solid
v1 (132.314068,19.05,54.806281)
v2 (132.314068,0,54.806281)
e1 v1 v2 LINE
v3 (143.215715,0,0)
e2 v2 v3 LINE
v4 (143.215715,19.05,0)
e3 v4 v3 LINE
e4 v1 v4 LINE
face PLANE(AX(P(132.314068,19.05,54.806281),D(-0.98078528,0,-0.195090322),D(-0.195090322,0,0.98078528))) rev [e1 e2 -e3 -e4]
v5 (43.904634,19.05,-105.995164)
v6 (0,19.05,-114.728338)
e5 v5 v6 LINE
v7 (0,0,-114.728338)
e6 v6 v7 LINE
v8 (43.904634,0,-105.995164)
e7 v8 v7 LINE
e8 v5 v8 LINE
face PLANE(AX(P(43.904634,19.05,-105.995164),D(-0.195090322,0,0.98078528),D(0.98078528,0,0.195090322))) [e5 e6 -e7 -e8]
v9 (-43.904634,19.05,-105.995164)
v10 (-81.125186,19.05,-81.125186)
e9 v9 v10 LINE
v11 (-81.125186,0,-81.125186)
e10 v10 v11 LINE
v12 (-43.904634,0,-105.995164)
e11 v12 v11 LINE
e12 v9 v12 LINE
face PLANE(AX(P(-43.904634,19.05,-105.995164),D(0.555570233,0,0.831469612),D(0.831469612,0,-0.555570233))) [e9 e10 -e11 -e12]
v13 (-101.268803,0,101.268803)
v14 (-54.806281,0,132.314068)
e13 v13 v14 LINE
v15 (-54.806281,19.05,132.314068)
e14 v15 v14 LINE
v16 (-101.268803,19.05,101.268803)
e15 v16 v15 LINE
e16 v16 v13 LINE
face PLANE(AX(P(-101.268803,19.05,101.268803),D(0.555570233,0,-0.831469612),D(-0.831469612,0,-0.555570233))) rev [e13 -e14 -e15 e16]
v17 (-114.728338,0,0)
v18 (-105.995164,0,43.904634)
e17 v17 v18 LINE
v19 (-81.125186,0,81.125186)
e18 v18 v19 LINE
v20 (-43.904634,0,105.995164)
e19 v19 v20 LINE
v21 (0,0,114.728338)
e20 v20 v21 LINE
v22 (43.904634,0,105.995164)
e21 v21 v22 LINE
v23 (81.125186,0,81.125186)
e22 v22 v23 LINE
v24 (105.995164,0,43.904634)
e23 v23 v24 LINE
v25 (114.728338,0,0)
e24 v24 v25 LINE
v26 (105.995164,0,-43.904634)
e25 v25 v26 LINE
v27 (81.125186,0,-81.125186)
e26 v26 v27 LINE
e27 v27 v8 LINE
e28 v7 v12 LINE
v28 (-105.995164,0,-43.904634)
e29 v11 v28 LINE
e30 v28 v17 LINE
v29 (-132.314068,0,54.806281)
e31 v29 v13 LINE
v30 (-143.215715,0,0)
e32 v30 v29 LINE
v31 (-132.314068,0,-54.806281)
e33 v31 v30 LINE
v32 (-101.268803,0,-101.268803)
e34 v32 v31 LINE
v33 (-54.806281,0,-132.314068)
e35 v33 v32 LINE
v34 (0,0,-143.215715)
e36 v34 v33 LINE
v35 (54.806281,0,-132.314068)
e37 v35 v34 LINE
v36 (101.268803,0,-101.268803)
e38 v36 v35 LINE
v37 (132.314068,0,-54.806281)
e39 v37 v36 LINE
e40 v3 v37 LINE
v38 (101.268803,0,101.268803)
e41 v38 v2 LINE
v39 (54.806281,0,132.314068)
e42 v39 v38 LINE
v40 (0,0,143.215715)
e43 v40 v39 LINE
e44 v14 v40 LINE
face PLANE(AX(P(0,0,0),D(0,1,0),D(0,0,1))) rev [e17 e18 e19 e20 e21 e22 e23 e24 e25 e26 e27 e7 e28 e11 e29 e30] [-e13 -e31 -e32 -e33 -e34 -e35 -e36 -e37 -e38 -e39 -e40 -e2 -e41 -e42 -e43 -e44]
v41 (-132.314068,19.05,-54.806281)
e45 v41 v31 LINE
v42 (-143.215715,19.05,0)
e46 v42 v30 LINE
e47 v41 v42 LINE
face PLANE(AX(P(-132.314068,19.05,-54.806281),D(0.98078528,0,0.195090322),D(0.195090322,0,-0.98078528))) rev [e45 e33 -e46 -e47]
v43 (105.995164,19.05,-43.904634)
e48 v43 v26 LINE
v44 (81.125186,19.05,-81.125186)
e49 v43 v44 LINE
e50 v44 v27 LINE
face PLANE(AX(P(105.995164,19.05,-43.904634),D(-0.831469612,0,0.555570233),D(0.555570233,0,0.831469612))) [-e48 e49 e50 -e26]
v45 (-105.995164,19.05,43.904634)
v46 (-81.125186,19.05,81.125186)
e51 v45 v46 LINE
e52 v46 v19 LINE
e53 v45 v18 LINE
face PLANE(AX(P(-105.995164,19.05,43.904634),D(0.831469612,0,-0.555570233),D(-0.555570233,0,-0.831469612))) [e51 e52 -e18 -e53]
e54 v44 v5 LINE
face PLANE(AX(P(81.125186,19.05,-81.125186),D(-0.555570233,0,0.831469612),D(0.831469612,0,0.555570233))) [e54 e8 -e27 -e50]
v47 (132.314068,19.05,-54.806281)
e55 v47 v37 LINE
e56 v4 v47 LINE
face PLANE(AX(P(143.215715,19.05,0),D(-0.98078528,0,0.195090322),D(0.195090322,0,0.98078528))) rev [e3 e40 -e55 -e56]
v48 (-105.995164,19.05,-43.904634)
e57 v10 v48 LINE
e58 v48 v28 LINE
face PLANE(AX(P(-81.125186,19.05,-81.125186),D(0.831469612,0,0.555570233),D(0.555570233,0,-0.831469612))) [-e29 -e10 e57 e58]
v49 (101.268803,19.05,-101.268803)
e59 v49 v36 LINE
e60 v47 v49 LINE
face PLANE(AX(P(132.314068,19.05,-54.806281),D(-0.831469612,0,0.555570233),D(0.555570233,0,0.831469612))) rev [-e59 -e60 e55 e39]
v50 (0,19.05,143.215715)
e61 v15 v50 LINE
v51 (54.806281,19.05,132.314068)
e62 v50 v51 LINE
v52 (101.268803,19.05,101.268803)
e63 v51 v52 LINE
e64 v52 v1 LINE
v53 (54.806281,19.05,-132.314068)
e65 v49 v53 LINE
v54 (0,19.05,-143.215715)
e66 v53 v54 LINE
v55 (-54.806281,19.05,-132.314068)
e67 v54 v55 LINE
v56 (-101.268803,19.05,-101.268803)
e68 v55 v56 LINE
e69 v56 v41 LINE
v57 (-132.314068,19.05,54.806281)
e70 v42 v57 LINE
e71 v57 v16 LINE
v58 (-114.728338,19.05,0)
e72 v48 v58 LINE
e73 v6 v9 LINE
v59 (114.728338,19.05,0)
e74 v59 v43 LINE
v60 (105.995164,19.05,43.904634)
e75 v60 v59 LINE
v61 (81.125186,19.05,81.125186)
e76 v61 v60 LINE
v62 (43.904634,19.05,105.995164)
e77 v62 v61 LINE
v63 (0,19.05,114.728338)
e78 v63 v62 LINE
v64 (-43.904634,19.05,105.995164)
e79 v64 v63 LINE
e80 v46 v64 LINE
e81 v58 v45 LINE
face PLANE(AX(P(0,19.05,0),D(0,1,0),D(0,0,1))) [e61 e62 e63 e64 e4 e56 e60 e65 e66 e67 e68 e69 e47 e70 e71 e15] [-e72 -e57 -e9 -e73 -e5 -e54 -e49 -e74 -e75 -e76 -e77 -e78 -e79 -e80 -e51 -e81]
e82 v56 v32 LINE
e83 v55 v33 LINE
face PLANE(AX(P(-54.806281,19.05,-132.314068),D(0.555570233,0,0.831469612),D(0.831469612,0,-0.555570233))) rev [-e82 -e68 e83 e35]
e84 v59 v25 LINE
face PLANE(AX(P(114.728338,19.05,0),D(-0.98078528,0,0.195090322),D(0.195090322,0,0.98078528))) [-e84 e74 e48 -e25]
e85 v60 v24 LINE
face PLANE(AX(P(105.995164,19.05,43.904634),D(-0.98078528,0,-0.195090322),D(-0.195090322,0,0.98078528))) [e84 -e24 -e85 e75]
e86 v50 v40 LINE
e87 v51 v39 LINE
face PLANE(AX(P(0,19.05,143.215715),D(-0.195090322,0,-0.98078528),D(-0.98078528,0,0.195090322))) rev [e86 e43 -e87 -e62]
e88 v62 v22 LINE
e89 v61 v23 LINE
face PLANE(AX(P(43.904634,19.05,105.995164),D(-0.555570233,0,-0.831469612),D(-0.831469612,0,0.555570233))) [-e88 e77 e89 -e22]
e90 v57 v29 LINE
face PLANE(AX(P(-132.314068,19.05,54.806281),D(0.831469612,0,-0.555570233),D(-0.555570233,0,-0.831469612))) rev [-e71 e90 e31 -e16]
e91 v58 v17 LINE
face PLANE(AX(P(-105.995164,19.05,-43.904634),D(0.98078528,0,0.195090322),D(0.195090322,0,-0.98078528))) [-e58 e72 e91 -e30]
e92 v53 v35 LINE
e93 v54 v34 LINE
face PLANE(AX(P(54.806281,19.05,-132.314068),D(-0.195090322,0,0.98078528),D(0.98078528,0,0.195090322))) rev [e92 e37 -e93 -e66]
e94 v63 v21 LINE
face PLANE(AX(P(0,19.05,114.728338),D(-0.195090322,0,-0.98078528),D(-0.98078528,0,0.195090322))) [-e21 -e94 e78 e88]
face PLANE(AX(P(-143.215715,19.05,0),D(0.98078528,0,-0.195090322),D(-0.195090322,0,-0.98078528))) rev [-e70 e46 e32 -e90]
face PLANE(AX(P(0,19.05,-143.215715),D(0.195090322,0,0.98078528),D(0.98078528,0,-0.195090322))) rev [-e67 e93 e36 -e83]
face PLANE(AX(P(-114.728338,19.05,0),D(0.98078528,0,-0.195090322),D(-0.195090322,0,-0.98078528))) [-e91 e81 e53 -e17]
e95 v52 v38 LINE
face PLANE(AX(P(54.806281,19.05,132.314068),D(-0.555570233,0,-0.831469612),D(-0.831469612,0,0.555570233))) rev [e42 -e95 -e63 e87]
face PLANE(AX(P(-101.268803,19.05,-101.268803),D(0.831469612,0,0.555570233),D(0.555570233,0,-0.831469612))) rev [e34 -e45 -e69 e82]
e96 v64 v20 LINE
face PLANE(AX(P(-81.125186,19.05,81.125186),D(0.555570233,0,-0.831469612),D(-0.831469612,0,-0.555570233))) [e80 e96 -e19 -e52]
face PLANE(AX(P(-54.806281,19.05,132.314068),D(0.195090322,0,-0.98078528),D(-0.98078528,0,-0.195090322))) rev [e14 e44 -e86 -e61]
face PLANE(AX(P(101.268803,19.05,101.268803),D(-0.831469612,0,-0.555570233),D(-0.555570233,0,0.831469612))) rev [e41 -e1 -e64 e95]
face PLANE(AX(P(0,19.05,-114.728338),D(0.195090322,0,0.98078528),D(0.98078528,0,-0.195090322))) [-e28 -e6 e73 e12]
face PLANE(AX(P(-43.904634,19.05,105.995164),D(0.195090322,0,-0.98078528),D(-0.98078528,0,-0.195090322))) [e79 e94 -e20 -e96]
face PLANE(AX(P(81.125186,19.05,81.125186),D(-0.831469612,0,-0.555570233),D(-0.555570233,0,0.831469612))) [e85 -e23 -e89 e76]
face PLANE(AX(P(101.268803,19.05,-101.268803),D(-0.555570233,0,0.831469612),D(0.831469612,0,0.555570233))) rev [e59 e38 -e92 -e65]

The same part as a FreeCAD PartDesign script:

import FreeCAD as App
import Part
import Sketcher
from FreeCAD import Vector
Q = App.Units.Quantity

doc = App.newDocument("Part")
body = doc.addObject("PartDesign::Body", "Body")

sketch1 = body.newObject("Sketcher::SketchObject", "Sketch")
sketch1.AttachmentSupport = (doc.getObject("XZ_Plane"), [""])
sketch1.MapMode = "FlatFace"
sketch1.addGeometry([
    Part.LineSegment(Vector(143.215715, 0, 0), Vector(132.314068, -54.806281, 0)),
    Part.LineSegment(Vector(132.314068, -54.806281, 0), Vector(101.268803, -101.268803, 0)),
    Part.LineSegment(Vector(101.268803, -101.268803, 0), Vector(54.806281, -132.314068, 0)),
    Part.LineSegment(Vector(54.806281, -132.314068, 0), Vector(0, -143.215715, 0)),
    Part.LineSegment(Vector(0, -143.215715, 0), Vector(-54.806281, -132.314068, 0)),
    Part.LineSegment(Vector(-54.806281, -132.314068, 0), Vector(-101.268803, -101.268803, 0)),
    Part.LineSegment(Vector(-101.268803, -101.268803, 0), Vector(-132.314068, -54.806281, 0)),
    Part.LineSegment(Vector(-132.314068, -54.806281, 0), Vector(-143.215715, 0, 0)),
    Part.LineSegment(Vector(-143.215715, 0, 0), Vector(-132.314068, 54.806281, 0)),
    Part.LineSegment(Vector(-132.314068, 54.806281, 0), Vector(-101.268803, 101.268803, 0)),
    Part.LineSegment(Vector(-101.268803, 101.268803, 0), Vector(-54.806281, 132.314068, 0)),
    Part.LineSegment(Vector(-54.806281, 132.314068, 0), Vector(0, 143.215715, 0)),
    Part.LineSegment(Vector(0, 143.215715, 0), Vector(54.806281, 132.314068, 0)),
    Part.LineSegment(Vector(54.806281, 132.314068, 0), Vector(101.268803, 101.268803, 0)),
    Part.LineSegment(Vector(101.268803, 101.268803, 0), Vector(132.314068, 54.806281, 0)),
    Part.LineSegment(Vector(132.314068, 54.806281, 0), Vector(143.215715, 0, 0)),
    Part.LineSegment(Vector(105.995164, -43.904634, 0), Vector(114.728338, 0, 0)),
    Part.LineSegment(Vector(114.728338, 0, 0), Vector(105.995164, 43.904634, 0)),
    Part.LineSegment(Vector(105.995164, 43.904634, 0), Vector(81.125186, 81.125186, 0)),
    Part.LineSegment(Vector(81.125186, 81.125186, 0), Vector(43.904634, 105.995164, 0)),
    Part.LineSegment(Vector(43.904634, 105.995164, 0), Vector(0, 114.728338, 0)),
    Part.LineSegment(Vector(0, 114.728338, 0), Vector(-43.904634, 105.995164, 0)),
    Part.LineSegment(Vector(-43.904634, 105.995164, 0), Vector(-81.125186, 81.125186, 0)),
    Part.LineSegment(Vector(-81.125186, 81.125186, 0), Vector(-105.995164, 43.904634, 0)),
    Part.LineSegment(Vector(-105.995164, 43.904634, 0), Vector(-114.728338, 0, 0)),
    Part.LineSegment(Vector(-114.728338, 0, 0), Vector(-105.995164, -43.904634, 0)),
    Part.LineSegment(Vector(-105.995164, -43.904634, 0), Vector(-81.125186, -81.125186, 0)),
    Part.LineSegment(Vector(-81.125186, -81.125186, 0), Vector(-43.904634, -105.995164, 0)),
    Part.LineSegment(Vector(-43.904634, -105.995164, 0), Vector(0, -114.728338, 0)),
    Part.LineSegment(Vector(0, -114.728338, 0), Vector(43.904634, -105.995164, 0)),
    Part.LineSegment(Vector(43.904634, -105.995164, 0), Vector(81.125186, -81.125186, 0)),
    Part.LineSegment(Vector(81.125186, -81.125186, 0), Vector(105.995164, -43.904634, 0)),
], False)
sketch1.addConstraint([
    Sketcher.Constraint("Coincident", 0, 2, 1, 1),
    Sketcher.Constraint("Coincident", 1, 2, 2, 1),
    Sketcher.Constraint("Coincident", 2, 2, 3, 1),
    Sketcher.Constraint("Coincident", 3, 2, 4, 1),
    Sketcher.Constraint("Coincident", 4, 2, 5, 1),
    Sketcher.Constraint("Coincident", 5, 2, 6, 1),
    Sketcher.Constraint("Coincident", 6, 2, 7, 1),
    Sketcher.Constraint("Coincident", 7, 2, 8, 1),
    Sketcher.Constraint("Coincident", 8, 2, 9, 1),
    Sketcher.Constraint("Coincident", 9, 2, 10, 1),
    Sketcher.Constraint("Coincident", 10, 2, 11, 1),
    Sketcher.Constraint("Coincident", 11, 2, 12, 1),
    Sketcher.Constraint("Coincident", 12, 2, 13, 1),
    Sketcher.Constraint("Coincident", 13, 2, 14, 1),
    Sketcher.Constraint("Coincident", 14, 2, 15, 1),
    Sketcher.Constraint("Coincident", 15, 2, 0, 1),
    Sketcher.Constraint("Coincident", 16, 2, 17, 1),
    Sketcher.Constraint("Coincident", 17, 2, 18, 1),
    Sketcher.Constraint("Coincident", 18, 2, 19, 1),
    Sketcher.Constraint("Coincident", 19, 2, 20, 1),
    Sketcher.Constraint("Coincident", 20, 2, 21, 1),
    Sketcher.Constraint("Coincident", 21, 2, 22, 1),
    Sketcher.Constraint("Coincident", 22, 2, 23, 1),
    Sketcher.Constraint("Coincident", 23, 2, 24, 1),
    Sketcher.Constraint("Coincident", 24, 2, 25, 1),
    Sketcher.Constraint("Coincident", 25, 2, 26, 1),
    Sketcher.Constraint("Coincident", 26, 2, 27, 1),
    Sketcher.Constraint("Coincident", 27, 2, 28, 1),
    Sketcher.Constraint("Coincident", 28, 2, 29, 1),
    Sketcher.Constraint("Coincident", 29, 2, 30, 1),
    Sketcher.Constraint("Coincident", 30, 2, 31, 1),
    Sketcher.Constraint("Coincident", 31, 2, 16, 1),
    Sketcher.Constraint("Symmetric", 0, 2, 8, 2, -1, 1),
    Sketcher.Constraint("Symmetric", 1, 2, 9, 2, -1, 1),
    Sketcher.Constraint("Symmetric", 2, 2, 10, 2, -1, 1),
    Sketcher.Constraint("Symmetric", 3, 2, 11, 2, -1, 1),
    Sketcher.Constraint("Symmetric", 4, 2, 12, 2, -1, 1),
    Sketcher.Constraint("Symmetric", 5, 2, 13, 2, -1, 1),
    Sketcher.Constraint("Symmetric", 6, 2, 14, 2, -1, 1),
    Sketcher.Constraint("Symmetric", 7, 2, 15, 2, -1, 1),
    Sketcher.Constraint("Symmetric", 16, 2, 24, 2, -1, 1),
    Sketcher.Constraint("Symmetric", 17, 2, 25, 2, -1, 1),
    Sketcher.Constraint("Symmetric", 18, 2, 26, 2, -1, 1),
    Sketcher.Constraint("Symmetric", 19, 2, 27, 2, -1, 1),
    Sketcher.Constraint("Symmetric", 20, 2, 28, 2, -1, 1),
    Sketcher.Constraint("Symmetric", 21, 2, 29, 2, -1, 1),
    Sketcher.Constraint("Symmetric", 22, 2, 30, 2, -1, 1),
    Sketcher.Constraint("Symmetric", 23, 2, 31, 2, -1, 1),
    Sketcher.Constraint("Symmetric", 2, 2, 4, 2, -2),
    Sketcher.Constraint("Symmetric", 1, 2, 5, 2, -2),
    Sketcher.Constraint("Symmetric", 0, 2, 6, 2, -2),
    Sketcher.Constraint("Symmetric", 19, 2, 21, 2, -2),
    Sketcher.Constraint("Symmetric", 18, 2, 22, 2, -2),
    Sketcher.Constraint("Symmetric", 17, 2, 23, 2, -2),
    Sketcher.Constraint("PointOnObject", 3, 2, -2),
    Sketcher.Constraint("PointOnObject", 7, 2, -1),
    Sketcher.Constraint("PointOnObject", 16, 2, -1),
    Sketcher.Constraint("PointOnObject", 20, 2, -2),
    Sketcher.Constraint("Perpendicular", 0, 4),
    Sketcher.Constraint("Perpendicular", 1, 5),
    Sketcher.Constraint("Perpendicular", 12, 16),
    Sketcher.Constraint("Parallel", 14, 18),
    Sketcher.Constraint("Parallel", 13, 19),
    Sketcher.Constraint("Perpendicular", 16, 20),
    Sketcher.Constraint("Equal", 0, 1),
    Sketcher.Constraint("Equal", 1, 2),
    Sketcher.Constraint("Equal", 2, 3),
    Sketcher.Constraint("Equal", 17, 18),
    Sketcher.Constraint("Equal", 18, 19),
    Sketcher.Constraint("Equal", 19, 20),
    Sketcher.Constraint("Distance", 0, Q("2.2 in")),
    Sketcher.Constraint("Angle", 0, Q("-101.25 deg")),
    Sketcher.Constraint("Angle", 1, Q("-123.75 deg")),
    Sketcher.Constraint("DistanceX", -1, 1, 16, 2, Q("114.728338 mm")),
])
pad1 = body.newObject("PartDesign::Pad", "Pad")
pad1.Profile = sketch1
pad1.Length = Q("0.75 in")
pad1.Reversed = True

doc.recompute()
